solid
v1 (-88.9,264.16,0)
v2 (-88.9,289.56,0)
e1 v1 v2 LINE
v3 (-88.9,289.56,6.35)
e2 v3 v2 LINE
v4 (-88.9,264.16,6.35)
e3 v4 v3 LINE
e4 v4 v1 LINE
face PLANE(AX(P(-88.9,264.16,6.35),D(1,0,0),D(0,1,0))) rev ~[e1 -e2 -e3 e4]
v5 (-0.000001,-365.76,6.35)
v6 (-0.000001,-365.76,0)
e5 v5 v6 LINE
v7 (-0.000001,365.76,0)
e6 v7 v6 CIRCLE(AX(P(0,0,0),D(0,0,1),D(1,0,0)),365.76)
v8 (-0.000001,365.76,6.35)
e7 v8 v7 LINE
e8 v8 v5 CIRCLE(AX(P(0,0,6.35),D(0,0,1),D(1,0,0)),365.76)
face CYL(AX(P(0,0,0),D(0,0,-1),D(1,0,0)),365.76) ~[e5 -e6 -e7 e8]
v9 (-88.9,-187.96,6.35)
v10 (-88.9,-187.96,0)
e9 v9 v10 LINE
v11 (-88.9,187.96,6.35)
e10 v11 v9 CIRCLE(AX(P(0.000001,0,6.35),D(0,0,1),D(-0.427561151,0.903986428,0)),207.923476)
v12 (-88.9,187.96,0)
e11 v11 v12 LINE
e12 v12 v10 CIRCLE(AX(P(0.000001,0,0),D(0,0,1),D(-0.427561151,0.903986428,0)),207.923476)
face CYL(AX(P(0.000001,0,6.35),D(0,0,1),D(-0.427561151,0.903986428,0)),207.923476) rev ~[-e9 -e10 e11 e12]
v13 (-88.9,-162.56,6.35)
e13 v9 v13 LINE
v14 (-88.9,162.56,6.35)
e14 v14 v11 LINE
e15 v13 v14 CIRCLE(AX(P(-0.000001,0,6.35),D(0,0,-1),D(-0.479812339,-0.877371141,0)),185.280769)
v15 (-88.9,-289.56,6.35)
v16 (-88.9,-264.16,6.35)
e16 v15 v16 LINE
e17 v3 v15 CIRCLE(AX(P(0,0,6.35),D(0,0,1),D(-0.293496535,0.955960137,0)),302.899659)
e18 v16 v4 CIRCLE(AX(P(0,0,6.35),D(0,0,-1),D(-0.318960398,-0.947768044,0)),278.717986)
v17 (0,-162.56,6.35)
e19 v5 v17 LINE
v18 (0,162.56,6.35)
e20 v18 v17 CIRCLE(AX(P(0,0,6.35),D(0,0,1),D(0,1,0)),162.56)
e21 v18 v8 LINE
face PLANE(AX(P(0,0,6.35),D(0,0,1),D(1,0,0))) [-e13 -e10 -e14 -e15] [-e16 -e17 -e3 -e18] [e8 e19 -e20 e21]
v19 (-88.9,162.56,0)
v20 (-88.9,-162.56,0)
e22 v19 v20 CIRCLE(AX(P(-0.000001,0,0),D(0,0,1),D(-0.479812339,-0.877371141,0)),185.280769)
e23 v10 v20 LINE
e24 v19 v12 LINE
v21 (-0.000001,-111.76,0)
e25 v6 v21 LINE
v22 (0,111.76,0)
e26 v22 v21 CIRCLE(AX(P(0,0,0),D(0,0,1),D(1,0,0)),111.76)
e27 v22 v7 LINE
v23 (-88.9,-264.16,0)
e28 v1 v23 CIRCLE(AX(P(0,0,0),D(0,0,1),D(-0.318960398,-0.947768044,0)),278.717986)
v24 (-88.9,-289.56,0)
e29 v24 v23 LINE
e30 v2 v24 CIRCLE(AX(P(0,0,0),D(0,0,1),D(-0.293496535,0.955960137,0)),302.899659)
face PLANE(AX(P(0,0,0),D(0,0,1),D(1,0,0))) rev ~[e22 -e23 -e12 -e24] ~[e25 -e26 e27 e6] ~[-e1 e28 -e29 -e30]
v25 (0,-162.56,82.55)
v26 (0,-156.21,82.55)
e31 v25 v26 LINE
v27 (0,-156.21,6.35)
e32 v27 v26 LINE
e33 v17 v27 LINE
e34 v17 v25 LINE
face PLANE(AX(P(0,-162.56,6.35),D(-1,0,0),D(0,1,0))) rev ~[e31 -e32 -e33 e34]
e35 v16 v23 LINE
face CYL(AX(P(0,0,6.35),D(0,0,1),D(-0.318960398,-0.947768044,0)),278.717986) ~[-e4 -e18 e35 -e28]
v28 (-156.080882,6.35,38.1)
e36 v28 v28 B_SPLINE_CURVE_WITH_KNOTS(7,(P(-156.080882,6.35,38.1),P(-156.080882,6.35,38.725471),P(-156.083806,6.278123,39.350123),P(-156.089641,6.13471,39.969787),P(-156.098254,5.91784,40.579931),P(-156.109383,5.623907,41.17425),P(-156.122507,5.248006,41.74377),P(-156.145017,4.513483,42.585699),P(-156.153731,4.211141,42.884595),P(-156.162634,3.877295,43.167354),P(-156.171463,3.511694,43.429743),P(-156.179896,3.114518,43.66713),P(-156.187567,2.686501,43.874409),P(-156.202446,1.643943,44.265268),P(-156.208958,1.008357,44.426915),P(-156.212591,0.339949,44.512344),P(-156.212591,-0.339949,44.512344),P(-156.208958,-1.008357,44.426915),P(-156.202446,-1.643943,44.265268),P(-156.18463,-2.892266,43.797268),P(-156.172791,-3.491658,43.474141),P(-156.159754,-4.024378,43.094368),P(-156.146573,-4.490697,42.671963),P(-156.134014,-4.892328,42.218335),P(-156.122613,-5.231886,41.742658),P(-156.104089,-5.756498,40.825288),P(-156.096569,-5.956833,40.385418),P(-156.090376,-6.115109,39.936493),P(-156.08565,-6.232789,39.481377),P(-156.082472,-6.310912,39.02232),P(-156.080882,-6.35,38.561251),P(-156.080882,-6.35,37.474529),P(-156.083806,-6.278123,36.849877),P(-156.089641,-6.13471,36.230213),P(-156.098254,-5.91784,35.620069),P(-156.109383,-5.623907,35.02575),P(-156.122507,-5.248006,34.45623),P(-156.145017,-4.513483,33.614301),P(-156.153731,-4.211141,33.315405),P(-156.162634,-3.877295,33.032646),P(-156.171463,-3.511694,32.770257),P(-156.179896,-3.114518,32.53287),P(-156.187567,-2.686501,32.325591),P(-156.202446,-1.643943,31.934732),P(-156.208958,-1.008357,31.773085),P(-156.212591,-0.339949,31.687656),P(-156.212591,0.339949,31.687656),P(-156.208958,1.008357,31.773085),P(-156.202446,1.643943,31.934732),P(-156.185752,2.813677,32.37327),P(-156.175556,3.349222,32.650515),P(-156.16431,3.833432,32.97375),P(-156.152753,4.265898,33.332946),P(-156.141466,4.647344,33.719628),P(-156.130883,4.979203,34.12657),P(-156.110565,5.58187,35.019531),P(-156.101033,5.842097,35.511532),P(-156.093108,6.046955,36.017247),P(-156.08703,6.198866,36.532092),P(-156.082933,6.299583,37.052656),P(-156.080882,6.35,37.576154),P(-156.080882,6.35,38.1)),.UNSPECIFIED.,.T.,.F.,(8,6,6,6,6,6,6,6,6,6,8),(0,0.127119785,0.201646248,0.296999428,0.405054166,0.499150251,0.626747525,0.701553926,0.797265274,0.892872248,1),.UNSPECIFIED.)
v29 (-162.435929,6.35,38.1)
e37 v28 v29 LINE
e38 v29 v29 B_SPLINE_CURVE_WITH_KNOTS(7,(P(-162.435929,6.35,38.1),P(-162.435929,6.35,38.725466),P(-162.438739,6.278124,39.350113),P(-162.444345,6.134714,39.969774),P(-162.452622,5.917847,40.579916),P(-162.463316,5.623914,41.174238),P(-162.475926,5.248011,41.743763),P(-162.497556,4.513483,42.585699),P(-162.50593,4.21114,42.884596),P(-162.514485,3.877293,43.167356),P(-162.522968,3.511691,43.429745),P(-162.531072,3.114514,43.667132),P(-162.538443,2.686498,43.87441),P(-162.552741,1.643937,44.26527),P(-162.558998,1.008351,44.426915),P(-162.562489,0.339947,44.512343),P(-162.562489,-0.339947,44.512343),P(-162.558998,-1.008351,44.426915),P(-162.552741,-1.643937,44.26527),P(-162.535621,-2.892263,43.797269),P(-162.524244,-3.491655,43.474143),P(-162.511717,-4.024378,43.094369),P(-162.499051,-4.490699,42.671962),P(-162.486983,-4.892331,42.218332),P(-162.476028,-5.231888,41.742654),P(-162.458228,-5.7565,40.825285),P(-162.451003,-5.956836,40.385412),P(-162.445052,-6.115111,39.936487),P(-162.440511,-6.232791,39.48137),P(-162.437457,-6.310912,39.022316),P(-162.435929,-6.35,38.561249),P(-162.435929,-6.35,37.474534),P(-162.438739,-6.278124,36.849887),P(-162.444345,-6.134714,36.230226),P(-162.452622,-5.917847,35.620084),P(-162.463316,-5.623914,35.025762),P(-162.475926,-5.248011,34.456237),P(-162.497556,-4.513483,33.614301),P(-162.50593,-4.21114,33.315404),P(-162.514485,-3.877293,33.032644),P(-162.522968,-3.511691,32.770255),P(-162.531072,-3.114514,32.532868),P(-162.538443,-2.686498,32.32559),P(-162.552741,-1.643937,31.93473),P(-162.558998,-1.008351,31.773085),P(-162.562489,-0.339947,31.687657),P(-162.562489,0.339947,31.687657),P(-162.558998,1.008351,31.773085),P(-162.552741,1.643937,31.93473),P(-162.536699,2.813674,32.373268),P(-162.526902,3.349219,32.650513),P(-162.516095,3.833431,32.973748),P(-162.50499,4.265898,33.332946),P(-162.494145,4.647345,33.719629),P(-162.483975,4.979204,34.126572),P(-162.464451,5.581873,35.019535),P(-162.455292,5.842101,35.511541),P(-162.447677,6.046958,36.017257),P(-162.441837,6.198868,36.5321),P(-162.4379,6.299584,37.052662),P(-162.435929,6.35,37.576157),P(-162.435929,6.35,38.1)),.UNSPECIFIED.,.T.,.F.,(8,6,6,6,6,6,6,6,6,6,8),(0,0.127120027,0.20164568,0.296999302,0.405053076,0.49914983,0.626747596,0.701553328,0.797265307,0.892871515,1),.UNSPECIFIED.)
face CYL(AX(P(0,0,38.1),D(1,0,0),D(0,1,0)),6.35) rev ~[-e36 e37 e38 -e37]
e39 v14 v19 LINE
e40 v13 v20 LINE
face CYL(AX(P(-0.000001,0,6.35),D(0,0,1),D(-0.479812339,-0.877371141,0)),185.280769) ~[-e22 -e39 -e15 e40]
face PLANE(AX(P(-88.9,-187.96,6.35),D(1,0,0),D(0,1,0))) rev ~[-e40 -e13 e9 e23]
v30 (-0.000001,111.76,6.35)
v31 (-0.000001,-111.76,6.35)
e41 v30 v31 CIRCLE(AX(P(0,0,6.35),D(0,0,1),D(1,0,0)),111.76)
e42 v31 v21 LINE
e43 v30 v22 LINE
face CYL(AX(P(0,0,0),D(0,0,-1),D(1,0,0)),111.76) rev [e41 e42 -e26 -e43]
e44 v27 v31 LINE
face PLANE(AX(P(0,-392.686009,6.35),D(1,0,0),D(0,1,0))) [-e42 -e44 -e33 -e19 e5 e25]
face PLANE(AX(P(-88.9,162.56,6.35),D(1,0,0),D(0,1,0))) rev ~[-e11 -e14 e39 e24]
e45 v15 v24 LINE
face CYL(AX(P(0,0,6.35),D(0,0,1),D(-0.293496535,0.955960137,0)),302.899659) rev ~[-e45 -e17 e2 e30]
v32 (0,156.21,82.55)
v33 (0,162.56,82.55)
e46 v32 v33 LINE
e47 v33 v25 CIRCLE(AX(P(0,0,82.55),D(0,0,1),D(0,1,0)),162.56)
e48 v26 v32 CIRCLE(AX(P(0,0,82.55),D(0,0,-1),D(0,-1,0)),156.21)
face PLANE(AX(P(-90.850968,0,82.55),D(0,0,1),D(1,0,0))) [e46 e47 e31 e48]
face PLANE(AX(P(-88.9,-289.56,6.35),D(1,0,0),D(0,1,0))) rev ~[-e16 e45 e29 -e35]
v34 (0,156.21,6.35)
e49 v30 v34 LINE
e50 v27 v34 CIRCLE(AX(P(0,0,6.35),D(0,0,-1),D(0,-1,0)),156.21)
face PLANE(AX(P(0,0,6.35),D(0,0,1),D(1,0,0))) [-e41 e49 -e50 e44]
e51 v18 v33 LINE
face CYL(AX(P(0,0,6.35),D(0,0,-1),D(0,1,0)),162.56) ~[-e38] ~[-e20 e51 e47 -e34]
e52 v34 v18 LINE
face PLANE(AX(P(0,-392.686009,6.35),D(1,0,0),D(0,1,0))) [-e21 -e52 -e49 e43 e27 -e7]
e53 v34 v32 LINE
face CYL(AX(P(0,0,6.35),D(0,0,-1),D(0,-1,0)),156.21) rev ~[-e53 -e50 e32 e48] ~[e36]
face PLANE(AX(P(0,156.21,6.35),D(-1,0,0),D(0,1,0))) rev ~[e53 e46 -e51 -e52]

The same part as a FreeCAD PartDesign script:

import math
import FreeCAD as App
import Part
import Sketcher
from FreeCAD import Vector
Q = App.Units.Quantity

doc = App.newDocument("Part")
body = doc.addObject("PartDesign::Body", "Body")

# Sketch on XY plane
sketch1 = body.newObject("Sketcher::SketchObject", "Sketch")
sketch1.AttachmentSupport = (doc.getObject("XY_Plane"), [""])
sketch1.MapMode = "FlatFace"
sketch1.addGeometry(Part.Circle(Vector(0, 0, 0), Vector(0, 0, 1), 366), False)
sketch1.addGeometry(Part.Circle(Vector(0, 0, 0), Vector(0, 0, 1), 112), False)
sketch1.addConstraint(Sketcher.Constraint("Coincident", 0, 3, -1, 1))
sketch1.addConstraint(Sketcher.Constraint("Coincident", 1, 3, -1, 1))
sketch1.addConstraint(Sketcher.Constraint("Diameter", 0, Q("28.8 in")))
sketch1.addConstraint(Sketcher.Constraint("Diameter", 1, Q("8.8 in")))
pad1 = body.newObject("PartDesign::Pad", "Pad")
pad1.Profile = sketch1
pad1.Length = Q("0.25 in")

# Sketch on XY plane
sketch2 = body.newObject("Sketcher::SketchObject", "Sketch001")
sketch2.AttachmentSupport = (doc.getObject("XY_Plane"), [""])
sketch2.MapMode = "FlatFace"
sketch2.AttachmentOffset = App.Placement(Vector(0, 0, 0.25 * 25.4), App.Rotation())
sketch2.addGeometry(Part.LineSegment(Vector(0, 395, 0), Vector(0, -393, 0)), False)
sketch2.addGeometry(Part.LineSegment(Vector(0, -393, 0), Vector(380, -393, 0)), False)
sketch2.addGeometry(Part.LineSegment(Vector(380, -393, 0), Vector(380, 395, 0)), False)
sketch2.addGeometry(Part.LineSegment(Vector(380, 395, 0), Vector(0, 395, 0)), False)
sketch2.addConstraint(Sketcher.Constraint("Coincident", 0, 2, 1, 1))
sketch2.addConstraint(Sketcher.Constraint("Coincident", 1, 2, 2, 1))
sketch2.addConstraint(Sketcher.Constraint("Coincident", 2, 2, 3, 1))
sketch2.addConstraint(Sketcher.Constraint("Coincident", 3, 2, 0, 1))
sketch2.addConstraint(Sketcher.Constraint("Vertical", 0))
sketch2.addConstraint(Sketcher.Constraint("Horizontal", 1))
sketch2.addConstraint(Sketcher.Constraint("Vertical", 2))
sketch2.addConstraint(Sketcher.Constraint("Horizontal", 3))
sketch2.addConstraint(Sketcher.Constraint("PointOnObject", 0, 2, -2))
sketch2.addConstraint(Sketcher.Constraint("DistanceX", 1, 1, 1, 2, 380.011261))
sketch2.addConstraint(Sketcher.Constraint("DistanceY", 0, 2, 0, 1, 787.612766))
sketch2.addConstraint(Sketcher.Constraint("DistanceY", 0, 2, -1, 1, 392.686009))
pocket1 = body.newObject("PartDesign::Pocket", "Pocket")
pocket1.Profile = sketch2
pocket1.Type = "ThroughAll"

# Sketch on XY plane
sketch3 = body.newObject("Sketcher::SketchObject", "Sketch002")
sketch3.AttachmentSupport = (doc.getObject("XY_Plane"), [""])
sketch3.MapMode = "FlatFace"
sketch3.AttachmentOffset = App.Placement(Vector(0, 0, 0.25 * 25.4), App.Rotation())
sketch3.addGeometry(Part.ArcOfCircle(Part.Circle(Vector(0, 0, 0), Vector(0, 0, 1), 303), math.radians(107), math.radians(253)), False)
sketch3.addGeometry(Part.LineSegment(Vector(-89, -290, 0), Vector(-89, -264, 0)), False)
sketch3.addGeometry(Part.ArcOfCircle(Part.Circle(Vector(0, 0, 0), Vector(0, 0, 1), 279), math.radians(109), math.radians(251)), False)
sketch3.addGeometry(Part.LineSegment(Vector(-89, 264, 0), Vector(-89, 290, 0)), False)
sketch3.addGeometry(Part.ArcOfCircle(Part.Circle(Vector(0, 0, 0), Vector(0, 0, 1), 208), math.radians(115), math.radians(245)), False)
sketch3.addGeometry(Part.LineSegment(Vector(-89, -188, 0), Vector(-89, -163, 0)), False)
sketch3.addGeometry(Part.ArcOfCircle(Part.Circle(Vector(0, 0, 0), Vector(0, 0, 1), 185), math.radians(119), math.radians(241)), False)
sketch3.addGeometry(Part.LineSegment(Vector(-89, 163, 0), Vector(-89, 188, 0)), False)
sketch3.addConstraint(Sketcher.Constraint("Coincident", 0, 2, 1, 1))
sketch3.addConstraint(Sketcher.Constraint("Coincident", 1, 2, 2, 2))
sketch3.addConstraint(Sketcher.Constraint("Coincident", 2, 1, 3, 1))
sketch3.addConstraint(Sketcher.Constraint("Coincident", 3, 2, 0, 1))
sketch3.addConstraint(Sketcher.Constraint("Coincident", 4, 2, 5, 1))
sketch3.addConstraint(Sketcher.Constraint("Coincident", 5, 2, 6, 2))
sketch3.addConstraint(Sketcher.Constraint("Coincident", 6, 1, 7, 1))
sketch3.addConstraint(Sketcher.Constraint("Coincident", 7, 2, 4, 1))
sketch3.addConstraint(Sketcher.Constraint("Vertical", 1))
sketch3.addConstraint(Sketcher.Constraint("Vertical", 3))
sketch3.addConstraint(Sketcher.Constraint("Vertical", 5))
sketch3.addConstraint(Sketcher.Constraint("Vertical", 7))
sketch3.addConstraint(Sketcher.Constraint("Coincident", 0, 3, -1, 1))
sketch3.addConstraint(Sketcher.Constraint("Coincident", 2, 3, -1, 1))
sketch3.addConstraint(Sketcher.Constraint("Coincident", 4, 3, -1, 1))
sketch3.addConstraint(Sketcher.Constraint("Coincident", 6, 3, -1, 1))
sketch3.addConstraint(Sketcher.Constraint("Vertical", 1, 2, 2, 1))
sketch3.addConstraint(Sketcher.Constraint("Vertical", 3, 2, 4, 2))
sketch3.addConstraint(Sketcher.Constraint("Vertical", 5, 2, 6, 1))
sketch3.addConstraint(Sketcher.Constraint("Equal", 3, 5))
sketch3.addConstraint(Sketcher.Constraint("DistanceY", 1, 1, 1, 2, Q("1 in")))
sketch3.addConstraint(Sketcher.Constraint("DistanceY", 1, 2, 4, 2, Q("3 in")))
sketch3.addConstraint(Sketcher.Constraint("DistanceY", 0, 2, -1, 1, Q("11.4 in")))
sketch3.addConstraint(Sketcher.Constraint("DistanceX", 1, 2, -1, 1, Q("3.5 in")))
pocket2 = body.newObject("PartDesign::Pocket", "Pocket001")
pocket2.Profile = sketch3
pocket2.Type = "ThroughAll"

# Sketch on XY plane
sketch4 = body.newObject("Sketcher::SketchObject", "Sketch003")
sketch4.AttachmentSupport = (doc.getObject("XY_Plane"), [""])
sketch4.MapMode = "FlatFace"
sketch4.AttachmentOffset = App.Placement(Vector(0, 0, 0.25 * 25.4), App.Rotation())
sketch4.addGeometry(Part.LineSegment(Vector(0, 156, 0), Vector(0, 163, 0)), False)
sketch4.addGeometry(Part.ArcOfCircle(Part.Circle(Vector(0, 0, 0), Vector(0, 0, 1), 163), math.radians(90), math.radians(270)), False)
sketch4.addGeometry(Part.LineSegment(Vector(0, -163, 0), Vector(0, -156, 0)), False)
sketch4.addGeometry(Part.ArcOfCircle(Part.Circle(Vector(0, 0, 0), Vector(0, 0, 1), 156), math.radians(90), math.radians(270)), False)
sketch4.addConstraint(Sketcher.Constraint("Coincident", 0, 2, 1, 1))
sketch4.addConstraint(Sketcher.Constraint("Coincident", 1, 2, 2, 1))
sketch4.addConstraint(Sketcher.Constraint("Coincident", 2, 2, 3, 2))
sketch4.addConstraint(Sketcher.Constraint("Coincident", 3, 1, 0, 1))
sketch4.addConstraint(Sketcher.Constraint("Vertical", 0))
sketch4.addConstraint(Sketcher.Constraint("Vertical", 2))
sketch4.addConstraint(Sketcher.Constraint("Coincident", 1, 3, -1, 1))
sketch4.addConstraint(Sketcher.Constraint("Coincident", 3, 3, -1, 1))
sketch4.addConstraint(Sketcher.Constraint("PointOnObject", 0, 2, -2))
sketch4.addConstraint(Sketcher.Constraint("PointOnObject", 1, 2, -2))
sketch4.addConstraint(Sketcher.Constraint("Radius", 1, Q("6.4 in")))
sketch4.addConstraint(Sketcher.Constraint("Radius", 3, Q("6.15 in")))
pad2 = body.newObject("PartDesign::Pad", "Pad001")
pad2.Profile = sketch4
pad2.Length = Q("3 in")

# Sketch on YZ plane
sketch5 = body.newObject("Sketcher::SketchObject", "Sketch004")
sketch5.AttachmentSupport = (doc.getObject("YZ_Plane"), [""])
sketch5.MapMode = "FlatFace"
sketch5.addGeometry(Part.Circle(Vector(0, 38, 0), Vector(0, 0, 1), 6), False)
sketch5.addConstraint(Sketcher.Constraint("PointOnObject", 0, 3, -2))
sketch5.addConstraint(Sketcher.Constraint("Diameter", 0, Q("0.5 in")))
sketch5.addConstraint(Sketcher.Constraint("DistanceY", -1, 1, 0, 3, Q("1.5 in")))
pocket3 = body.newObject("PartDesign::Pocket", "Pocket002")
pocket3.Profile = sketch5
pocket3.Type = "ThroughAll"

doc.recompute()
